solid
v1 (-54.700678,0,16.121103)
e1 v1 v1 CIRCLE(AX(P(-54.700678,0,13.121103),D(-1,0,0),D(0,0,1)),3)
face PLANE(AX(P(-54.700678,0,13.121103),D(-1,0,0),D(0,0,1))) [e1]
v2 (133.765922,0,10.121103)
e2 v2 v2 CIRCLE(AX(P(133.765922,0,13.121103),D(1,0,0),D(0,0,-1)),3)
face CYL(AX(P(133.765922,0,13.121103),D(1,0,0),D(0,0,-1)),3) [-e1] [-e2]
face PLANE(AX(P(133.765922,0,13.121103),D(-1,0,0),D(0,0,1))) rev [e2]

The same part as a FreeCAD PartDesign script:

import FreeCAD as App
import Part
import Sketcher
Q = App.Units.Quantity

doc = App.newDocument("Part")
params = doc.addObject("Spreadsheet::Sheet", "Params")
for row, (alias, value) in enumerate([
    ("sketch1_height", "3 mm"),
    ("revolution_angle", "360 deg"),
    ("sketch2_diameter", "6 mm"),
    ("pad1_length", "10 mm"),
    ("sketch3_diameter", "6 mm"),
    ("pad2_length", "3 mm"),
], start=1):
    params.set(f"A{row}", alias)
    params.set(f"B{row}", "=" + value)
    params.setAlias(f"B{row}", alias)

body = doc.addObject("PartDesign::Body", "Body")

sketch1 = doc.addObject("Sketcher::SketchObject", "Sketch")
body.addObject(sketch1)
sketch1.AttachmentSupport = (doc.XZ_Plane, [""])
sketch1.MapMode = "FlatFace"
sketch1.addGeometry([
    Part.LineSegment(App.Vector(-41.700678, 13.121103, 0), App.Vector(-41.700678, 16.121103, 0)),
    Part.LineSegment(App.Vector(-41.700678, 16.121103, 0), App.Vector(133.765922, 16.121103, 0)),
    Part.LineSegment(App.Vector(133.765922, 16.121103, 0), App.Vector(133.765922, 13.121103, 0)),
    Part.LineSegment(App.Vector(133.765922, 13.121103, 0), App.Vector(-41.700678, 13.121103, 0)),
], False)
sketch1.addGeometry(Part.LineSegment(App.Vector(133.765922, 13.121103, 0), App.Vector(-41.700678, 13.121103, 0)), True)
sketch1.addConstraint([
    Sketcher.Constraint("Coincident", 0, 2, 1, 1),
    Sketcher.Constraint("Coincident", 1, 2, 2, 1),
    Sketcher.Constraint("Coincident", 2, 2, 3, 1),
    Sketcher.Constraint("Coincident", 3, 2, 0, 1),
    Sketcher.Constraint("Vertical", 0),
    Sketcher.Constraint("Horizontal", 1),
    Sketcher.Constraint("Vertical", 2),
    Sketcher.Constraint("Horizontal", 3),
    Sketcher.Constraint("Horizontal", 4),
    Sketcher.Constraint("Coincident", 4, 1, 2, 2),
    Sketcher.Constraint("Vertical", 0, 2, 4, 2),
    Sketcher.Constraint("DistanceY", 0, 1, 0, 2, Q("3 mm")),
    Sketcher.Constraint("DistanceX", 1, 1, 1, 2, Q("175.4666 mm")),
    Sketcher.Constraint("DistanceX", 0, 2, -1, 1, Q("41.700678 mm")),
    Sketcher.Constraint("DistanceY", -1, 1, 0, 2, Q("16.121103 mm")),
])
sketch1.setExpression("Constraints[11]", "Params.sketch1_height")
revolution = doc.addObject("PartDesign::Revolution", "Revolution")
body.addObject(revolution)
revolution.Profile = sketch1
revolution.ReferenceAxis = (sketch1, ["Axis0"])
revolution.setExpression("Angle", "Params.revolution_angle")

sketch2 = doc.addObject("Sketcher::SketchObject", "Sketch001")
body.addObject(sketch2)
sketch2.AttachmentSupport = (doc.YZ_Plane, [""])
sketch2.MapMode = "FlatFace"
sketch2.AttachmentOffset = App.Placement(App.Vector(0, 0, -41.700678), App.Rotation())
sketch2.addGeometry(Part.Circle(App.Vector(0, 13.121103, 0), App.Vector(0, 0, 1), 3), False)
sketch2.addConstraint([
    Sketcher.Constraint("PointOnObject", 0, 3, -2),
    Sketcher.Constraint("Diameter", 0, Q("6 mm")),
    Sketcher.Constraint("DistanceY", -1, 1, 0, 3, Q("13.121103 mm")),
])
sketch2.setExpression("Constraints[1]", "Params.sketch2_diameter")
pad1 = doc.addObject("PartDesign::Pad", "Pad")
body.addObject(pad1)
pad1.Profile = sketch2
pad1.setExpression("Length", "Params.pad1_length")
pad1.Reversed = True

sketch3 = doc.addObject("Sketcher::SketchObject", "Sketch002")
body.addObject(sketch3)
sketch3.AttachmentSupport = (doc.YZ_Plane, [""])
sketch3.MapMode = "FlatFace"
sketch3.AttachmentOffset = App.Placement(App.Vector(0, 0, -51.700678), App.Rotation())
sketch3.addGeometry(Part.Circle(App.Vector(0, 13.121103, 0), App.Vector(0, 0, 1), 3), False)
sketch3.addConstraint([
    Sketcher.Constraint("PointOnObject", 0, 3, -2),
    Sketcher.Constraint("Diameter", 0, Q("6 mm")),
    Sketcher.Constraint("DistanceY", -1, 1, 0, 3, Q("13.121103 mm")),
])
sketch3.setExpression("Constraints[1]", "Params.sketch3_diameter")
pad2 = doc.addObject("PartDesign::Pad", "Pad001")
body.addObject(pad2)
pad2.Profile = sketch3
pad2.setExpression("Length", "Params.pad2_length")
pad2.Reversed = True

doc.recompute()
